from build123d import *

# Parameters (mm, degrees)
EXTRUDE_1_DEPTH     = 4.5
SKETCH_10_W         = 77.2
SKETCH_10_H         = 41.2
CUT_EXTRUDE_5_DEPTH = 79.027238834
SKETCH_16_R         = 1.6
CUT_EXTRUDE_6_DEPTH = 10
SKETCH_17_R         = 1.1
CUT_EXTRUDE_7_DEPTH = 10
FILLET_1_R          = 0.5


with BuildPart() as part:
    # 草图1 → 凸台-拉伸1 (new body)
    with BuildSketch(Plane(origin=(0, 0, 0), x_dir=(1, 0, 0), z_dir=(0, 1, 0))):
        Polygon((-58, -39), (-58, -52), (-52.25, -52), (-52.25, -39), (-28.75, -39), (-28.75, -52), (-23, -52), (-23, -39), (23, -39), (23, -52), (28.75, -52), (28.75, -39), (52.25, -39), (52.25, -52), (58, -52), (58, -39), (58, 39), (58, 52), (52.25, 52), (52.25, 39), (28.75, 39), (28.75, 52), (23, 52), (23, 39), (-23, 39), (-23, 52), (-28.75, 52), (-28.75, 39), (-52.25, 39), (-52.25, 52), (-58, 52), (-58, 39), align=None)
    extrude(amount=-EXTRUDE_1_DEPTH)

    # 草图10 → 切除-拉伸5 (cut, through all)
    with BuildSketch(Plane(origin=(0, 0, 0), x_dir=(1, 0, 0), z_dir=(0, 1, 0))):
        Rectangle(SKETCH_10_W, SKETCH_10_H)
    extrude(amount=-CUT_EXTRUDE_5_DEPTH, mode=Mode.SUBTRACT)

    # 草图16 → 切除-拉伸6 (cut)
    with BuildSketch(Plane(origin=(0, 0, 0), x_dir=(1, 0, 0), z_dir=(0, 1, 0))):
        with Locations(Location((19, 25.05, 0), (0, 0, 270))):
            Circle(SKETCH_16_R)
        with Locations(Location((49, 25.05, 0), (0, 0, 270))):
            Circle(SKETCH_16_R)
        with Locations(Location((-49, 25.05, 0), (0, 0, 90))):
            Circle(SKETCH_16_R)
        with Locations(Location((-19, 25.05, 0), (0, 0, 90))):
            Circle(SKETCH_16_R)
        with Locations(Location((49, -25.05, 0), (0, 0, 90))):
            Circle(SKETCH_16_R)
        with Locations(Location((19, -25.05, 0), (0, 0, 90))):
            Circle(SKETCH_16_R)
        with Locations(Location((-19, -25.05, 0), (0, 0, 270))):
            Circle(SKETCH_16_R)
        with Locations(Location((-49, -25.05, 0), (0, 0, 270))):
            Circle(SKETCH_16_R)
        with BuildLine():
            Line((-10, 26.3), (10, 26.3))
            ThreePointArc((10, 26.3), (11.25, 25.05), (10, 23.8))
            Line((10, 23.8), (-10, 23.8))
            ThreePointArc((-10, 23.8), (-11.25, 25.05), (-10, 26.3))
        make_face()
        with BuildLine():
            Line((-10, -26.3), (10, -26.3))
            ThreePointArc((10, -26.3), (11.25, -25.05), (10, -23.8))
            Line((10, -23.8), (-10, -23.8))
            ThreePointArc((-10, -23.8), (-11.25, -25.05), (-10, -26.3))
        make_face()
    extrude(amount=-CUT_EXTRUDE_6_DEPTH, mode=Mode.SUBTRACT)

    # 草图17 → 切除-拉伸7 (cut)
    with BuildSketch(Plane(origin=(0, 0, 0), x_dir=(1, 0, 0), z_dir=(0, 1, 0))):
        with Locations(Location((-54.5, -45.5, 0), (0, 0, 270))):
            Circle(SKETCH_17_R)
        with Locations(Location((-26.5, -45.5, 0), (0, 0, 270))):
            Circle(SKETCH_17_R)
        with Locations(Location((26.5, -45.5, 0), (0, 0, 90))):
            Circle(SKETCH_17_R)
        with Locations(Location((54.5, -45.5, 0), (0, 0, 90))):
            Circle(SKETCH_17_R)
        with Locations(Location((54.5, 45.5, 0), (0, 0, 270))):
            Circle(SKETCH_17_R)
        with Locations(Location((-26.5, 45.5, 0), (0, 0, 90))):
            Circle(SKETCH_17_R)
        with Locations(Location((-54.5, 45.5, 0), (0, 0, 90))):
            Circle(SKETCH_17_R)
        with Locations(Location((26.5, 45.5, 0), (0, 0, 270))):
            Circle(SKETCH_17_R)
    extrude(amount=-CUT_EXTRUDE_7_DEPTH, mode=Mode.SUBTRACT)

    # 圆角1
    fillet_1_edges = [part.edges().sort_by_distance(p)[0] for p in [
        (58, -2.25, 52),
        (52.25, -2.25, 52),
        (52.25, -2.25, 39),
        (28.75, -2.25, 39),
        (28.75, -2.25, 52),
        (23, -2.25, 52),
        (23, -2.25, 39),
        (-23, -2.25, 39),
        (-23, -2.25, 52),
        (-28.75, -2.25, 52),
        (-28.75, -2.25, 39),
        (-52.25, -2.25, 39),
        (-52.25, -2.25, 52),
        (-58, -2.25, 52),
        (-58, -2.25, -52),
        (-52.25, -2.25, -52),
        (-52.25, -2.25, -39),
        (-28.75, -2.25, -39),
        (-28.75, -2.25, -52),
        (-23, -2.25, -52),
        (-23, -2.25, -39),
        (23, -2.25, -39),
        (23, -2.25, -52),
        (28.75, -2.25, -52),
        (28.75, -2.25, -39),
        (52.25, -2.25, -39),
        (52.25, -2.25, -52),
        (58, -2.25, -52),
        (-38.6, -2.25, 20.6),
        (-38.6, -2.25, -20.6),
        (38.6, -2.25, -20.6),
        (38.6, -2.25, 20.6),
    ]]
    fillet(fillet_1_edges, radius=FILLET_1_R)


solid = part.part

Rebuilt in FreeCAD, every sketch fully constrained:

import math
import FreeCAD as App
import Part
import Sketcher
from FreeCAD import Vector


def edges_at(feature, points):
    """Names of the edges that pass closest to the given points."""
    edges = feature.Shape.Edges
    near = lambda p: min(range(len(edges)), key=lambda i: edges[i].distToShape(Part.Vertex(*p))[0])
    return sorted({f"Edge{near(p) + 1}" for p in points})


def add_polygon(sketch, points):
    """Adds a closed chain of lines whose ends are joined by coincident constraints."""
    first, n = sketch.GeometryCount, len(points)
    for a, b in zip(points, points[1:] + points[:1]):
        sketch.addGeometry(Part.LineSegment(App.Vector(*a, 0), App.Vector(*b, 0)), False)
    for i in range(n):
        sketch.addConstraint(Sketcher.Constraint("Coincident", first + i, 2, first + (i + 1) % n, 1))

doc = App.newDocument("Part")
params = doc.addObject("Spreadsheet::Sheet", "Params")
for row, (alias, value) in enumerate([
    ("sketch1_width", "46 mm"),
    ("sketch1_height", "13 mm"),
    ("sketch1_height2", "104 mm"),
    ("sketch1_width2", "23.5 mm"),
    ("pad1_length", "4.5 mm"),
    ("sketch2_width", "77.2 mm"),
    ("sketch2_height", "41.2 mm"),
    ("sketch3_diameter", "3.2 mm"),
    ("sketch3_width", "20 mm"),
    ("sketch3_radius", "1.25 mm"),
    ("pocket2_length", "10 mm"),
    ("sketch4_diameter", "2.2 mm"),
    ("pocket3_length", "10 mm"),
    ("fillet_radius", "0.5 mm"),
], start=1):
    params.set(f"A{row}", alias)
    params.set(f"B{row}", "=" + value)
    params.setAlias(f"B{row}", alias)

body = doc.addObject("PartDesign::Body", "Body")

# Sketch on XZ plane
sketch1 = body.newObject("Sketcher::SketchObject", "Sketch")
sketch1.AttachmentSupport = (doc.getObject("XZ_Plane"), [""])
sketch1.MapMode = "FlatFace"
add_polygon(sketch1, [(-58, 52), (-52, 52), (-52, 39), (-29, 39), (-29, 52), (-23, 52), (-23, 39), (23, 39), (23, 52), (29, 52), (29, 39), (52, 39), (52, 52), (58, 52), (58, -52), (52, -52), (52, -39), (29, -39), (29, -52), (23, -52), (23, -39), (-23, -39), (-23, -52), (-29, -52), (-29, -39), (-52, -39), (-52, -52), (-58, -52)])  # lines 0-27
sketch1.addConstraint([
    Sketcher.Constraint("Horizontal", 0),
    Sketcher.Constraint("Vertical", 1),
    Sketcher.Constraint("Horizontal", 2),
    Sketcher.Constraint("Vertical", 3),
    Sketcher.Constraint("Horizontal", 4),
    Sketcher.Constraint("Vertical", 5),
    Sketcher.Constraint("Horizontal", 6),
    Sketcher.Constraint("Vertical", 7),
    Sketcher.Constraint("Horizontal", 8),
    Sketcher.Constraint("Vertical", 9),
    Sketcher.Constraint("Horizontal", 10),
    Sketcher.Constraint("Vertical", 11),
    Sketcher.Constraint("Horizontal", 12),
    Sketcher.Constraint("Vertical", 13),
    Sketcher.Constraint("Horizontal", 14),
    Sketcher.Constraint("Vertical", 15),
    Sketcher.Constraint("Horizontal", 16),
    Sketcher.Constraint("Vertical", 17),
    Sketcher.Constraint("Horizontal", 18),
    Sketcher.Constraint("Vertical", 19),
    Sketcher.Constraint("Horizontal", 20),
    Sketcher.Constraint("Vertical", 21),
    Sketcher.Constraint("Horizontal", 22),
    Sketcher.Constraint("Vertical", 23),
    Sketcher.Constraint("Horizontal", 24),
    Sketcher.Constraint("Vertical", 25),
    Sketcher.Constraint("Horizontal", 26),
    Sketcher.Constraint("Vertical", 27),
    Sketcher.Constraint("Symmetric", 0, 2, 14, 2, -1, 1),
    Sketcher.Constraint("Symmetric", 2, 2, 16, 2, -1, 1),
    Sketcher.Constraint("Symmetric", 4, 2, 18, 2, -1, 1),
    Sketcher.Constraint("Symmetric", 6, 2, 20, 2, -1, 1),
    Sketcher.Constraint("Symmetric", 8, 2, 22, 2, -1, 1),
    Sketcher.Constraint("Symmetric", 10, 2, 24, 2, -1, 1),
    Sketcher.Constraint("Symmetric", 12, 2, 26, 2, -1, 1),
    Sketcher.Constraint("Symmetric", 4, 2, 7, 2, -2),
    Sketcher.Constraint("Symmetric", 2, 2, 9, 2, -2),
    Sketcher.Constraint("Symmetric", 0, 2, 11, 2, -2),
    Sketcher.Constraint("Horizontal", 0, 2, 3, 2),
    Sketcher.Constraint("Horizontal", 2, 2, 5, 2),
    Sketcher.Constraint("Equal", 0, 4),
    Sketcher.Constraint("DistanceX", 6, 1, 6, 2, 46.0),
    Sketcher.Constraint("DistanceY", 1, 2, 1, 1, 13.0),
    Sketcher.Constraint("DistanceY", 13, 2, 13, 1, 104.0),
    Sketcher.Constraint("DistanceX", 2, 1, 2, 2, 23.5),
    Sketcher.Constraint("DistanceX", -1, 1, 12, 2, 58.0),
])
sketch1.setExpression("Constraints[69]", "Params.sketch1_width")
sketch1.setExpression("Constraints[70]", "Params.sketch1_height")
sketch1.setExpression("Constraints[71]", "Params.sketch1_height2")
sketch1.setExpression("Constraints[72]", "Params.sketch1_width2")
pad1 = body.newObject("PartDesign::Pad", "Pad")
pad1.Profile = sketch1
pad1.setExpression("Length", "Params.pad1_length")

# Sketch on XZ plane
sketch2 = body.newObject("Sketcher::SketchObject", "Sketch001")
sketch2.AttachmentSupport = (doc.getObject("XZ_Plane"), [""])
sketch2.MapMode = "FlatFace"
add_polygon(sketch2, [(-39, -21), (-39, 21), (39, 21), (39, -21)])  # lines 0-3
sketch2.addConstraint([
    Sketcher.Constraint("Vertical", 0),
    Sketcher.Constraint("Horizontal", 1),
    Sketcher.Constraint("Vertical", 2),
    Sketcher.Constraint("Horizontal", 3),
    Sketcher.Constraint("Symmetric", 0, 2, 2, 2, -1, 1),
    Sketcher.Constraint("DistanceX", 1, 1, 1, 2, 77.2),
    Sketcher.Constraint("DistanceY", 0, 1, 0, 2, 41.2),
])
sketch2.setExpression("Constraints[9]", "Params.sketch2_width")
sketch2.setExpression("Constraints[10]", "Params.sketch2_height")
pocket1 = body.newObject("PartDesign::Pocket", "Pocket")
pocket1.Profile = sketch2
pocket1.Type = "ThroughAll"
pocket1.Reversed = True

# Sketch on XZ plane
sketch3 = body.newObject("Sketcher::SketchObject", "Sketch002")
sketch3.AttachmentSupport = (doc.getObject("XZ_Plane"), [""])
sketch3.MapMode = "FlatFace"
sketch3.addGeometry([
    Part.Circle(Vector(19, -25.1, 0), Vector(0, 0, 1), 1.6),  # 0
    Part.Circle(Vector(49, -25.1, 0), Vector(0, 0, 1), 1.6),  # 1
    Part.Circle(Vector(-49, -25.1, 0), Vector(0, 0, 1), 1.6),  # 2
    Part.Circle(Vector(-19, -25.1, 0), Vector(0, 0, 1), 1.6),  # 3
    Part.Circle(Vector(49, 25.1, 0), Vector(0, 0, 1), 1.6),  # 4
    Part.Circle(Vector(19, 25.1, 0), Vector(0, 0, 1), 1.6),  # 5
    Part.Circle(Vector(-19, 25.1, 0), Vector(0, 0, 1), 1.6),  # 6
    Part.Circle(Vector(-49, 25.1, 0), Vector(0, 0, 1), 1.6),  # 7
    Part.LineSegment(Vector(10, -26.3, 0), Vector(-10, -26.3, 0)),  # 8
    Part.ArcOfCircle(Part.Circle(Vector(-10, -25.1, 0), Vector(0, 0, 1), 1.2), math.radians(90), math.radians(270)),  # 9
    Part.LineSegment(Vector(-10, -23.8, 0), Vector(10, -23.8, 0)),  # 10
    Part.ArcOfCircle(Part.Circle(Vector(10, -25.1, 0), Vector(0, 0, 1), 1.2), math.radians(-90), math.radians(90)),  # 11
    Part.LineSegment(Vector(-10, 26.3, 0), Vector(10, 26.3, 0)),  # 12
    Part.ArcOfCircle(Part.Circle(Vector(10, 25.1, 0), Vector(0, 0, 1), 1.2), math.radians(-90), math.radians(90)),  # 13
    Part.LineSegment(Vector(10, 23.8, 0), Vector(-10, 23.8, 0)),  # 14
    Part.ArcOfCircle(Part.Circle(Vector(-10, 25.1, 0), Vector(0, 0, 1), 1.2), math.radians(90), math.radians(270)),  # 15
], False)
sketch3.addConstraint([
    Sketcher.Constraint("Tangent", 8, 2, 9, 2),
    Sketcher.Constraint("Tangent", 9, 1, 10, 1),
    Sketcher.Constraint("Tangent", 10, 2, 11, 2),
    Sketcher.Constraint("Tangent", 11, 1, 8, 1),
    Sketcher.Constraint("Tangent", 12, 2, 13, 2),
    Sketcher.Constraint("Tangent", 13, 1, 14, 1),
    Sketcher.Constraint("Tangent", 14, 2, 15, 2),
    Sketcher.Constraint("Tangent", 15, 1, 12, 1),
    Sketcher.Constraint("Horizontal", 8),
    Sketcher.Constraint("Horizontal", 10),
    Sketcher.Constraint("Horizontal", 12),
    Sketcher.Constraint("Horizontal", 14),
    Sketcher.Constraint("Equal", 0, 1),
    Sketcher.Constraint("Equal", 1, 2),
    Sketcher.Constraint("Equal", 2, 3),
    Sketcher.Constraint("Equal", 3, 4),
    Sketcher.Constraint("Equal", 4, 5),
    Sketcher.Constraint("Equal", 5, 6),
    Sketcher.Constraint("Equal", 6, 7),
    Sketcher.Constraint("Equal", 11, 13),
    Sketcher.Constraint("Symmetric", 2, 3, 4, 3, -1, 1),
    Sketcher.Constraint("Symmetric", 3, 3, 5, 3, -1, 1),
    Sketcher.Constraint("Symmetric", 0, 3, 6, 3, -1, 1),
    Sketcher.Constraint("Symmetric", 1, 3, 7, 3, -1, 1),
    Sketcher.Constraint("Symmetric", 9, 3, 13, 3, -1, 1),
    Sketcher.Constraint("Symmetric", 1, 3, 2, 3, -2),
    Sketcher.Constraint("Symmetric", 0, 3, 3, 3, -2),
    Sketcher.Constraint("Horizontal", 0, 3, 1, 3),
    Sketcher.Constraint("Horizontal", 3, 3, 9, 3),
    Sketcher.Constraint("Vertical", 11, 3, 13, 3),
    Sketcher.Constraint("Vertical", 9, 3, 15, 3),
    Sketcher.Constraint("Diameter", 0, 3.2),
    Sketcher.Constraint("DistanceX", 8, 2, 8, 1, 20.0),
    Sketcher.Constraint("Radius", 9, 1.25),
    Sketcher.Constraint("DistanceX", -1, 1, 0, 3, 19.0),
    Sketcher.Constraint("DistanceX", -1, 1, 1, 3, 49.0),
    Sketcher.Constraint("DistanceY", 8, 2, -1, 1, 26.3),
])
sketch3.setExpression("Constraints[31]", "Params.sketch3_diameter")
sketch3.setExpression("Constraints[32]", "Params.sketch3_width")
sketch3.setExpression("Constraints[33]", "Params.sketch3_radius")
pocket2 = body.newObject("PartDesign::Pocket", "Pocket001")
pocket2.Profile = sketch3
pocket2.setExpression("Length", "Params.pocket2_length")
pocket2.Reversed = True

# Sketch on XZ plane
sketch4 = body.newObject("Sketcher::SketchObject", "Sketch003")
sketch4.AttachmentSupport = (doc.getObject("XZ_Plane"), [""])
sketch4.MapMode = "FlatFace"
sketch4.addGeometry([
    Part.Circle(Vector(-54.5, 45.5, 0), Vector(0, 0, 1), 1.1),  # 0
    Part.Circle(Vector(-26.5, 45.5, 0), Vector(0, 0, 1), 1.1),  # 1
    Part.Circle(Vector(26.5, 45.5, 0), Vector(0, 0, 1), 1.1),  # 2
    Part.Circle(Vector(54.5, 45.5, 0), Vector(0, 0, 1), 1.1),  # 3
    Part.Circle(Vector(54.5, -45.5, 0), Vector(0, 0, 1), 1.1),  # 4
    Part.Circle(Vector(-26.5, -45.5, 0), Vector(0, 0, 1), 1.1),  # 5
    Part.Circle(Vector(-54.5, -45.5, 0), Vector(0, 0, 1), 1.1),  # 6
    Part.Circle(Vector(26.5, -45.5, 0), Vector(0, 0, 1), 1.1),  # 7
], False)
sketch4.addConstraint([
    Sketcher.Constraint("Equal", 0, 1),
    Sketcher.Constraint("Equal", 1, 2),
    Sketcher.Constraint("Equal", 2, 3),
    Sketcher.Constraint("Equal", 3, 4),
    Sketcher.Constraint("Equal", 4, 5),
    Sketcher.Constraint("Equal", 5, 6),
    Sketcher.Constraint("Equal", 6, 7),
    Sketcher.Constraint("Symmetric", 0, 3, 4, 3, -1, 1),
    Sketcher.Constraint("Symmetric", 2, 3, 5, 3, -1, 1),
    Sketcher.Constraint("Symmetric", 3, 3, 6, 3, -1, 1),
    Sketcher.Constraint("Symmetric", 1, 3, 7, 3, -1, 1),
    Sketcher.Constraint("Symmetric", 1, 3, 2, 3, -2),
    Sketcher.Constraint("Symmetric", 0, 3, 3, 3, -2),
    Sketcher.Constraint("Horizontal", 0, 3, 1, 3),
    Sketcher.Constraint("Diameter", 0, 2.2),
    Sketcher.Constraint("DistanceX", 0, 3, 1, 3, 28.0),
    Sketcher.Constraint("DistanceX", 1, 3, 2, 3, 53.0),
    Sketcher.Constraint("DistanceY", 4, 3, 3, 3, 91.0),
])
sketch4.setExpression("Constraints[14]", "Params.sketch4_diameter")
pocket3 = body.newObject("PartDesign::Pocket", "Pocket002")
pocket3.Profile = sketch4
pocket3.setExpression("Length", "Params.pocket3_length")
pocket3.Reversed = True
doc.recompute()

fillet = body.newObject("PartDesign::Fillet", "Fillet")
fillet.Base = (pocket3, edges_at(pocket3, [
    (58, -2.25, 52),
    (52.25, -2.25, 52),
    (52.25, -2.25, 39),
    (28.75, -2.25, 39),
    (28.75, -2.25, 52),
    (23, -2.25, 52),
    (23, -2.25, 39),
    (-23, -2.25, 39),
    (-23, -2.25, 52),
    (-28.75, -2.25, 52),
    (-28.75, -2.25, 39),
    (-52.25, -2.25, 39),
    (-52.25, -2.25, 52),
    (-58, -2.25, 52),
    (-58, -2.25, -52),
    (-52.25, -2.25, -52),
    (-52.25, -2.25, -39),
    (-28.75, -2.25, -39),
    (-28.75, -2.25, -52),
    (-23, -2.25, -52),
    (-23, -2.25, -39),
    (23, -2.25, -39),
    (23, -2.25, -52),
    (28.75, -2.25, -52),
    (28.75, -2.25, -39),
    (52.25, -2.25, -39),
    (52.25, -2.25, -52),
    (58, -2.25, -52),
    (-38.6, -2.25, 20.6),
    (-38.6, -2.25, -20.6),
    (38.6, -2.25, -20.6),
    (38.6, -2.25, 20.6),
]))
fillet.setExpression("Radius", "Params.fillet_radius")

doc.recompute()
